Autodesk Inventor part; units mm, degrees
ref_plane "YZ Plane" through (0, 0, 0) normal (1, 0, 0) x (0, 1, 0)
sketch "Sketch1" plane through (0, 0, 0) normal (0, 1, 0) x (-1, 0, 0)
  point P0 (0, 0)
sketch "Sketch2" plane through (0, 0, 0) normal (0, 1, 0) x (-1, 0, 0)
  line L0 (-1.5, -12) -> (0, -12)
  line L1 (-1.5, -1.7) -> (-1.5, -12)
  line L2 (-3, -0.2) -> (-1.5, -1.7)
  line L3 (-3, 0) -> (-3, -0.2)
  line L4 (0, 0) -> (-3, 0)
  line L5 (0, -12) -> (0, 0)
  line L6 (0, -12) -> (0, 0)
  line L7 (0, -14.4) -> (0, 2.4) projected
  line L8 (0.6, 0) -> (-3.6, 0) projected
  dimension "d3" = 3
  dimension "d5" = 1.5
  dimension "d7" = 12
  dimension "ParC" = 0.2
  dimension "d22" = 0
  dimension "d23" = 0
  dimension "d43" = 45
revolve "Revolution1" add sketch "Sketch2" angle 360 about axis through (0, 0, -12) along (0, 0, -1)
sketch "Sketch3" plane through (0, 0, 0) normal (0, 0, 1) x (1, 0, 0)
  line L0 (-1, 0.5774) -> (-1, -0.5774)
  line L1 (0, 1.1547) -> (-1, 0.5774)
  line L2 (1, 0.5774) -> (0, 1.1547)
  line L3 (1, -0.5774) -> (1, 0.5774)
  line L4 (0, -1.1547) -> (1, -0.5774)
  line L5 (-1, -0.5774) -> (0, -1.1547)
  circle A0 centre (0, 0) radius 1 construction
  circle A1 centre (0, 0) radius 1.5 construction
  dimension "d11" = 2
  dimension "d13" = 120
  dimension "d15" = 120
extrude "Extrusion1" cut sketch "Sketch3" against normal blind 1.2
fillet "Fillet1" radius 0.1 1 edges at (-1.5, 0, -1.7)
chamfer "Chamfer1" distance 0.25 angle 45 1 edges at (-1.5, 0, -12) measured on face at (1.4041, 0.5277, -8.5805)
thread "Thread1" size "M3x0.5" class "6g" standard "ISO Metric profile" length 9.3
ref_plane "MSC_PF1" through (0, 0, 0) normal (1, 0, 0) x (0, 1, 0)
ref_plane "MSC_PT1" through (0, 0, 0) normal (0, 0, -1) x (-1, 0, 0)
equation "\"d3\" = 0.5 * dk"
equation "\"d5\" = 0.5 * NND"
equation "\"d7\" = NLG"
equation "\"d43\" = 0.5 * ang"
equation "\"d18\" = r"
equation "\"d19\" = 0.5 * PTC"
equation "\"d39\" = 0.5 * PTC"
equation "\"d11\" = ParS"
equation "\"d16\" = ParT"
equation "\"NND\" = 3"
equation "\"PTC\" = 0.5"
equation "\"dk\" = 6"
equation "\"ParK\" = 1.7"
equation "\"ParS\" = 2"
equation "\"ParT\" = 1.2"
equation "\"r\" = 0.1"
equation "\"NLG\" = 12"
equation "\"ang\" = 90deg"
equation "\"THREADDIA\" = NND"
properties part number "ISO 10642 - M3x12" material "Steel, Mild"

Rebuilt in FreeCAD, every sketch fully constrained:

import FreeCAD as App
import Part
import Sketcher

V = App.Vector
Q = App.Units.Quantity


def edges_at(feature, points):
    """Names of the edges that pass closest to the given points."""
    edges = feature.Shape.Edges
    near = lambda p: min(range(len(edges)), key=lambda i: edges[i].distToShape(Part.Vertex(*p))[0])
    return sorted({f"Edge{near(p) + 1}" for p in points})

doc = App.newDocument("Part")
body = doc.addObject("PartDesign::Body", "Body")

sketch1 = doc.addObject("Sketcher::SketchObject", "Sketch")
body.addObject(sketch1)
sketch1.AttachmentSupport = (doc.XZ_Plane, [""])
sketch1.MapMode = "FlatFace"
sketch1.addGeometry(Part.LineSegment(V(1.5, -1.7, 0), V(1.5, -12, 0)), False)
sketch1.addGeometry(Part.LineSegment(V(1.5, -12, 0), V(0, -12, 0)), False)
sketch1.addGeometry(Part.LineSegment(V(0, -12, 0), V(0, 0, 0)), False)
sketch1.addGeometry(Part.LineSegment(V(0, 0, 0), V(3, 0, 0)), False)
sketch1.addGeometry(Part.LineSegment(V(3, 0, 0), V(3, -0.2, 0)), False)
sketch1.addGeometry(Part.LineSegment(V(3, -0.2, 0), V(1.5, -1.7, 0)), False)
sketch1.addConstraint(Sketcher.Constraint("Coincident", 0, 2, 1, 1))
sketch1.addConstraint(Sketcher.Constraint("Coincident", 1, 2, 2, 1))
sketch1.addConstraint(Sketcher.Constraint("Coincident", 2, 2, 3, 1))
sketch1.addConstraint(Sketcher.Constraint("Coincident", 3, 2, 4, 1))
sketch1.addConstraint(Sketcher.Constraint("Coincident", 4, 2, 5, 1))
sketch1.addConstraint(Sketcher.Constraint("Coincident", 5, 2, 0, 1))
sketch1.addConstraint(Sketcher.Constraint("Vertical", 0))
sketch1.addConstraint(Sketcher.Constraint("Horizontal", 1))
sketch1.addConstraint(Sketcher.Constraint("Vertical", 2))
sketch1.addConstraint(Sketcher.Constraint("Horizontal", 3))
sketch1.addConstraint(Sketcher.Constraint("Vertical", 4))
sketch1.addConstraint(Sketcher.Constraint("Coincident", 2, 2, -1, 1))
sketch1.addConstraint(Sketcher.Constraint("DistanceX", 3, 1, 3, 2, Q("3 mm")))
sketch1.addConstraint(Sketcher.Constraint("DistanceY", 2, 1, 2, 2, Q("12 mm")))
sketch1.addConstraint(Sketcher.Constraint("DistanceX", 1, 2, 1, 1, Q("1.5 mm")))
sketch1.addConstraint(Sketcher.Constraint("DistanceY", 4, 2, 4, 1, Q("0.2 mm")))
sketch1.addConstraint(Sketcher.Constraint("DistanceY", 5, 2, 4, 2, Q("1.5 mm")))
revolution = doc.addObject("PartDesign::Revolution", "Revolution")
body.addObject(revolution)
revolution.Profile = sketch1
revolution.ReferenceAxis = (sketch1, ["V_Axis"])
revolution.Angle = 360

sketch2 = doc.addObject("Sketcher::SketchObject", "Sketch001")
body.addObject(sketch2)
sketch2.AttachmentSupport = (doc.XY_Plane, [""])
sketch2.MapMode = "FlatFace"
sketch2.addGeometry(Part.LineSegment(V(0, 1.2, 0), V(-1, 0.6, 0)), False)
sketch2.addGeometry(Part.LineSegment(V(-1, 0.6, 0), V(-1, -0.6, 0)), False)
sketch2.addGeometry(Part.LineSegment(V(-1, -0.6, 0), V(0, -1.2, 0)), False)
sketch2.addGeometry(Part.LineSegment(V(0, -1.2, 0), V(1, -0.6, 0)), False)
sketch2.addGeometry(Part.LineSegment(V(1, -0.6, 0), V(1, 0.6, 0)), False)
sketch2.addGeometry(Part.LineSegment(V(1, 0.6, 0), V(0, 1.2, 0)), False)
sketch2.addConstraint(Sketcher.Constraint("Coincident", 0, 2, 1, 1))
sketch2.addConstraint(Sketcher.Constraint("Coincident", 1, 2, 2, 1))
sketch2.addConstraint(Sketcher.Constraint("Coincident", 2, 2, 3, 1))
sketch2.addConstraint(Sketcher.Constraint("Coincident", 3, 2, 4, 1))
sketch2.addConstraint(Sketcher.Constraint("Coincident", 4, 2, 5, 1))
sketch2.addConstraint(Sketcher.Constraint("Coincident", 5, 2, 0, 1))
sketch2.addConstraint(Sketcher.Constraint("Vertical", 1))
sketch2.addConstraint(Sketcher.Constraint("Vertical", 4))
sketch2.addConstraint(Sketcher.Constraint("Symmetric", 0, 2, 3, 2, -1, 1))
sketch2.addConstraint(Sketcher.Constraint("Symmetric", 2, 2, 5, 2, -1, 1))
sketch2.addConstraint(Sketcher.Constraint("PointOnObject", 2, 2, -2))
sketch2.addConstraint(Sketcher.Constraint("Parallel", 2, 5))
sketch2.addConstraint(Sketcher.Constraint("Horizontal", 1, 2, 3, 2))
sketch2.addConstraint(Sketcher.Constraint("DistanceX", 1, 2, 3, 2, Q("2 mm")))
sketch2.addConstraint(Sketcher.Constraint("DistanceY", 1, 2, 1, 1, Q("1.1548 mm")))
sketch2.addConstraint(Sketcher.Constraint("DistanceY", 2, 2, 0, 2, Q("1.732 mm")))
pocket1 = doc.addObject("PartDesign::Pocket", "Pocket")
body.addObject(pocket1)
pocket1.Profile = sketch2
pocket1.Length = 1.2
doc.recompute()

fillet = doc.addObject("PartDesign::Fillet", "Fillet")
body.addObject(fillet)
fillet.Base = (pocket1, edges_at(pocket1, [(-1.5, 0, -1.7)]))
fillet.Radius = 0.1
doc.recompute()

chamfer = doc.addObject("PartDesign::Chamfer", "Chamfer")
body.addObject(chamfer)
chamfer.Base = (fillet, edges_at(fillet, [(-1.5, 0, -12)]))
chamfer.Size = 0.25

doc.recompute()
